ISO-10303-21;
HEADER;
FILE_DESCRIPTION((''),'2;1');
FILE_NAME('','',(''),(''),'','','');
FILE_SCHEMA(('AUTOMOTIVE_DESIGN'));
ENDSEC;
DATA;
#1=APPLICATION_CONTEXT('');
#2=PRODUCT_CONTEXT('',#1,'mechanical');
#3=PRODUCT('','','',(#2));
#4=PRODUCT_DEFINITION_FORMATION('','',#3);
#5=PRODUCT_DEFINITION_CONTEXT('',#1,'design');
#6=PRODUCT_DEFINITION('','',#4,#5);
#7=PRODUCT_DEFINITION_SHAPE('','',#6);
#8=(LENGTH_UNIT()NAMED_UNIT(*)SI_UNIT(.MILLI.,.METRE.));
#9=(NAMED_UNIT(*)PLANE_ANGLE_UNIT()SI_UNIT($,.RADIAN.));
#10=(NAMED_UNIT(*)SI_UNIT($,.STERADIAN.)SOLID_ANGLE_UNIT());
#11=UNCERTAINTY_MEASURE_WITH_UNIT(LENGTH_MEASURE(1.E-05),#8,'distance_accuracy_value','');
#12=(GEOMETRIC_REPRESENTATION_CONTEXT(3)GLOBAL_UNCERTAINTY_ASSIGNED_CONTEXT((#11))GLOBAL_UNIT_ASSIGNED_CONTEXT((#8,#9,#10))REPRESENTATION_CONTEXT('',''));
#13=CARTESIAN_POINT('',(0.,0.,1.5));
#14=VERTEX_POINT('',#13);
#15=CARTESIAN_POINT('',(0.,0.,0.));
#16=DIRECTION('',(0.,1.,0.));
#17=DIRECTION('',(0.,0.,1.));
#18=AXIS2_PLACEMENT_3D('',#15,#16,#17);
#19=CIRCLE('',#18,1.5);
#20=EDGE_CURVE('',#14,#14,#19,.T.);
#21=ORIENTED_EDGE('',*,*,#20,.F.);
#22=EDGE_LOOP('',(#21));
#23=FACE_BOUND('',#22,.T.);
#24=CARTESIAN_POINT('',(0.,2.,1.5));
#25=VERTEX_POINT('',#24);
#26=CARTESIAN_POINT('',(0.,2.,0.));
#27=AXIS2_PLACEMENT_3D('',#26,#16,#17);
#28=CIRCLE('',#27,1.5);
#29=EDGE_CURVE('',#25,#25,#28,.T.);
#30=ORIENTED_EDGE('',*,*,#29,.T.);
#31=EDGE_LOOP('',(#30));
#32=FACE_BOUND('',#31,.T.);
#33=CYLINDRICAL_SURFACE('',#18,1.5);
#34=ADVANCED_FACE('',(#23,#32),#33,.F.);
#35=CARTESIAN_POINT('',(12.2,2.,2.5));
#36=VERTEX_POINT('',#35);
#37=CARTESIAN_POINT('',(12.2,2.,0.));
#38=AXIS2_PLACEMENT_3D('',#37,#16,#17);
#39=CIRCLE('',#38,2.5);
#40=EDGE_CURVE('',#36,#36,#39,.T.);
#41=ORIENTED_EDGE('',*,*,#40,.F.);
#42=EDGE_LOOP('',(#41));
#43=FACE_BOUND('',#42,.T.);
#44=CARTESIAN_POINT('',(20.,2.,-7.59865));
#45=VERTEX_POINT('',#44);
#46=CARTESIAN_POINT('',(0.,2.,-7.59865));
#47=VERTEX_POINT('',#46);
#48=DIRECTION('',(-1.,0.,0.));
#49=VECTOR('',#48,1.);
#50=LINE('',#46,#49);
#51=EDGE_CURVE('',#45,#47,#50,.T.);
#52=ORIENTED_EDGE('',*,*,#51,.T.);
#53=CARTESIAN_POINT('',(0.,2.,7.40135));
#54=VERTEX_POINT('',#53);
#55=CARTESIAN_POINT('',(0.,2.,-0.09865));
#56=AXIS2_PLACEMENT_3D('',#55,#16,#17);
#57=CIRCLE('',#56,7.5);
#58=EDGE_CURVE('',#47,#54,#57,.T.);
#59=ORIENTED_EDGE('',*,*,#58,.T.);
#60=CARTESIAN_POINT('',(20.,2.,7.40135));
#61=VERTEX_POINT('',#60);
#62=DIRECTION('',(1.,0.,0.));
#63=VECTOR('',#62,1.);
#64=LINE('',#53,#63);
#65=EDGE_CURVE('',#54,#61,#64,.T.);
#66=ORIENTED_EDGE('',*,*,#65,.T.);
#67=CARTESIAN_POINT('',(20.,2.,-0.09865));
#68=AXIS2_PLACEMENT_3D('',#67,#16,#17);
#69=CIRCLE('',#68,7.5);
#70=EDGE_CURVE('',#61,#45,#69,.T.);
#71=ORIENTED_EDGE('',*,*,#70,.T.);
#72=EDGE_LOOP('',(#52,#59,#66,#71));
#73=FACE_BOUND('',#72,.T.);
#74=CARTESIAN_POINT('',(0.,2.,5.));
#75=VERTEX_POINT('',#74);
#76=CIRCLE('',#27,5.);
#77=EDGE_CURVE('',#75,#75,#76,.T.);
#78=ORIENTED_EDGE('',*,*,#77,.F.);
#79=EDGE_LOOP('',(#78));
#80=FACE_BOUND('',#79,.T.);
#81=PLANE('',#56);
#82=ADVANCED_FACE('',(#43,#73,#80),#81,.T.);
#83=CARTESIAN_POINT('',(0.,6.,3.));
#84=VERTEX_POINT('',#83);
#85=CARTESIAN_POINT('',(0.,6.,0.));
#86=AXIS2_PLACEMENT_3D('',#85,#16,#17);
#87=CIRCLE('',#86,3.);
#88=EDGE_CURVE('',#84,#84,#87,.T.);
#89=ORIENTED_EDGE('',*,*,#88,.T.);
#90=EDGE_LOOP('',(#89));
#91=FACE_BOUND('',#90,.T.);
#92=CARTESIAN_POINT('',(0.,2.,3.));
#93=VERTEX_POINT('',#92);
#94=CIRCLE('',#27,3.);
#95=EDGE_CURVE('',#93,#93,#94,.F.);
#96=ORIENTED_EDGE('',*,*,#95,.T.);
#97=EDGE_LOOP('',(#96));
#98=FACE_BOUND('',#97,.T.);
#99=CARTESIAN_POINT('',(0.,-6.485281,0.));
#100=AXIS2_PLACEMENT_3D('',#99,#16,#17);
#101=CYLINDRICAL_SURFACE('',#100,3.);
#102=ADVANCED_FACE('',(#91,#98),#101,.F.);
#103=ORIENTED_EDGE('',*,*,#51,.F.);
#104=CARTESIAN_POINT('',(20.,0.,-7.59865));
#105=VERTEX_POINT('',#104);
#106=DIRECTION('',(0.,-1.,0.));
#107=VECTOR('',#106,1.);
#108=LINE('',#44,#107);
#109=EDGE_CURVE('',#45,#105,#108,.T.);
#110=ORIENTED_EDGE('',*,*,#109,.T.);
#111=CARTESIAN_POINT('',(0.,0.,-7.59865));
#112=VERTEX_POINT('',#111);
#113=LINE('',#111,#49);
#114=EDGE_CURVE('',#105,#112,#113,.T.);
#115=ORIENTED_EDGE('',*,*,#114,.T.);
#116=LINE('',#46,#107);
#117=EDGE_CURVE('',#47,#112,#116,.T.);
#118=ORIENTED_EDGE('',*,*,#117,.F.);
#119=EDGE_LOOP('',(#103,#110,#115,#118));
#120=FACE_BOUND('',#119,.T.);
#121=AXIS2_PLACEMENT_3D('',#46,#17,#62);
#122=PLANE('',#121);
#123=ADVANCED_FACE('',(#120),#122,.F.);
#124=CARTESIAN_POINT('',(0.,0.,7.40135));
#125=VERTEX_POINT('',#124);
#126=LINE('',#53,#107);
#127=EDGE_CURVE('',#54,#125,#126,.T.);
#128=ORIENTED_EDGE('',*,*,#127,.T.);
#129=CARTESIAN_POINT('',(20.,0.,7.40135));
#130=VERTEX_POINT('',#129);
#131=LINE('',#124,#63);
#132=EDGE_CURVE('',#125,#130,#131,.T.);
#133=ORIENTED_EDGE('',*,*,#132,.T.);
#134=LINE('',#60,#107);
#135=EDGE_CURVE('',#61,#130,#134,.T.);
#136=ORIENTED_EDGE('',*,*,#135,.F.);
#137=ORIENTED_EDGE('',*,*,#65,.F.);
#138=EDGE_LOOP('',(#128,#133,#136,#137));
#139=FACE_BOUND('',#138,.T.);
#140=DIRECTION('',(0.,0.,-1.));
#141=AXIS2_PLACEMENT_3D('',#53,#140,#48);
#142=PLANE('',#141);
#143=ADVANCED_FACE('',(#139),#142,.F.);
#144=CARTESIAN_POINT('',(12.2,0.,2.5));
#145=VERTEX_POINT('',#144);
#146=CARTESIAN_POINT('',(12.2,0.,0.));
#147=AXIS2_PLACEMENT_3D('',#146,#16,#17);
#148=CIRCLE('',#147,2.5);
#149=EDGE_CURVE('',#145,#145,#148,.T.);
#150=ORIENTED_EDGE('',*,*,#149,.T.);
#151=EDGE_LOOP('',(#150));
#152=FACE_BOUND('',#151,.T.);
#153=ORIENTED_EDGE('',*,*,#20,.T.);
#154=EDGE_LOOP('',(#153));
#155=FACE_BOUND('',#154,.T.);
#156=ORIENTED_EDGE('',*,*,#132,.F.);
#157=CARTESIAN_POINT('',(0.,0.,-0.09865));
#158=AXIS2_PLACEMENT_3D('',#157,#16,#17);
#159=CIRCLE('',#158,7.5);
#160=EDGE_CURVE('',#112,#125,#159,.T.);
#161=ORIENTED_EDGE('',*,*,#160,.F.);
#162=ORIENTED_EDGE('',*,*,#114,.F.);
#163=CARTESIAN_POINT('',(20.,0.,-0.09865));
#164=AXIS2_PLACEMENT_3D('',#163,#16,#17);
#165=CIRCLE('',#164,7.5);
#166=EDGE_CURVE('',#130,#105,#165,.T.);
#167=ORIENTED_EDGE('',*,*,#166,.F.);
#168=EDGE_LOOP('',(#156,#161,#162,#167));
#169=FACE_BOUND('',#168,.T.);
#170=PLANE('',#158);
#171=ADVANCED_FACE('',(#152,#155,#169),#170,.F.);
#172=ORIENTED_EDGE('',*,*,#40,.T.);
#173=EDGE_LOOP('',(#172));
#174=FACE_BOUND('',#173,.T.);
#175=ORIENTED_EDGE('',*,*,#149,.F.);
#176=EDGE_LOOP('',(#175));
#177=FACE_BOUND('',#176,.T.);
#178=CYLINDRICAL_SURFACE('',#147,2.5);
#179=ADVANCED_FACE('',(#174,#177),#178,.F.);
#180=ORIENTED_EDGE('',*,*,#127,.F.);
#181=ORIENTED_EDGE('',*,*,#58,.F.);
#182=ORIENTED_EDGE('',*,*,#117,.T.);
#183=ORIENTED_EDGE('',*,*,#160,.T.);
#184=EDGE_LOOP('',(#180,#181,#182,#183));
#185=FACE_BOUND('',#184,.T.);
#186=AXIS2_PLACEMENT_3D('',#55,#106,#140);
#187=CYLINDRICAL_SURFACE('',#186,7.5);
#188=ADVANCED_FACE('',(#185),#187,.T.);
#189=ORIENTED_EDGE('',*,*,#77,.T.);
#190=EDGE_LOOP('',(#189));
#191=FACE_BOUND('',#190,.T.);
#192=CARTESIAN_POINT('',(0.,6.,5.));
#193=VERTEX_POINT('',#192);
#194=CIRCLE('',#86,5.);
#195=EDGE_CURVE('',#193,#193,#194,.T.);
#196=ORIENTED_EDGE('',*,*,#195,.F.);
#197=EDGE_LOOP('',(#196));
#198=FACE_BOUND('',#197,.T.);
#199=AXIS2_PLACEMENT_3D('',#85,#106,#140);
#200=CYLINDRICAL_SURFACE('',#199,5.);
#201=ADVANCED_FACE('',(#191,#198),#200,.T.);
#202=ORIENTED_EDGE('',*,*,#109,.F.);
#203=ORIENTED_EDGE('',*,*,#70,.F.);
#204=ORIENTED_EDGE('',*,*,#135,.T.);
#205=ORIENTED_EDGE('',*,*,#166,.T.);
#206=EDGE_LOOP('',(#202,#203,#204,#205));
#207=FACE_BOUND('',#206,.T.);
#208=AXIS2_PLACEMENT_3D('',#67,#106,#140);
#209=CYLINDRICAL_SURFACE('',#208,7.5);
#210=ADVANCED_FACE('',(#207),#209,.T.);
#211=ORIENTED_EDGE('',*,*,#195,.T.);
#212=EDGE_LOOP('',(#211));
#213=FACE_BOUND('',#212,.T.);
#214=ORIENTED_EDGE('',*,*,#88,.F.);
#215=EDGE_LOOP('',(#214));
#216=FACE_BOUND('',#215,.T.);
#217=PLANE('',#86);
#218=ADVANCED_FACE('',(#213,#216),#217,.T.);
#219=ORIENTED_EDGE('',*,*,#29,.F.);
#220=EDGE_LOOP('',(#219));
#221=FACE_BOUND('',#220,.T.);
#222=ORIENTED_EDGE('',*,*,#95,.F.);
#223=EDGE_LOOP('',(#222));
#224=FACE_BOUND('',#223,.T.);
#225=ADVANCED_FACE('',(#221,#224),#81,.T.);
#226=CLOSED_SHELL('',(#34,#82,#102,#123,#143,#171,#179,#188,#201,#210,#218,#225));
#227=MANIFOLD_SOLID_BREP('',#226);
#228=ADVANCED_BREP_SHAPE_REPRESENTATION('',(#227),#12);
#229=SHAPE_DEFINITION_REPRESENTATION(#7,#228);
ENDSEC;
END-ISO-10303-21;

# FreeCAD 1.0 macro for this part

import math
import FreeCAD as App
import Part
import Sketcher
Q = App.Units.Quantity

doc = App.newDocument("Part")
body = doc.addObject("PartDesign::Body", "Body")

# Sketch on XZ plane
sketch1 = body.newObject("Sketcher::SketchObject", "Sketch")
sketch1.AttachmentSupport = (doc.getObject("XZ_Plane"), [""])
sketch1.MapMode = "FlatFace"
sketch1.addGeometry([
    Part.LineSegment(App.Vector(20, -8, 0), App.Vector(0, -8, 0)),
    Part.ArcOfCircle(Part.Circle(App.Vector(0, 0, 0), App.Vector(0, 0, 1), 8), math.radians(90), math.radians(270)),
    Part.LineSegment(App.Vector(0, 7, 0), App.Vector(20, 7, 0)),
    Part.ArcOfCircle(Part.Circle(App.Vector(20, 0, 0), App.Vector(0, 0, 1), 8), math.radians(-90), math.radians(90)),
], False)
sketch1.addConstraint([
    Sketcher.Constraint("Tangent", 0, 2, 1, 2),
    Sketcher.Constraint("Tangent", 1, 1, 2, 1),
    Sketcher.Constraint("Tangent", 2, 2, 3, 2),
    Sketcher.Constraint("Tangent", 3, 1, 0, 1),
    Sketcher.Constraint("Horizontal", 0),
    Sketcher.Constraint("Horizontal", 2),
    Sketcher.Constraint("PointOnObject", 1, 3, -2),
    Sketcher.Constraint("Radius", 1, Q("7.5 mm")),
    Sketcher.Constraint("DistanceX", 0, 2, 0, 1, Q("20 mm")),
    Sketcher.Constraint("DistanceY", 1, 3, -1, 1, Q("0.09865 mm")),
])
pad1 = body.newObject("PartDesign::Pad", "Pad")
pad1.Profile = sketch1
pad1.Length = 2
pad1.Reversed = True

# Sketch on XZ plane
sketch2 = body.newObject("Sketcher::SketchObject", "Sketch001")
sketch2.AttachmentSupport = (doc.getObject("XZ_Plane"), [""])
sketch2.MapMode = "FlatFace"
sketch2.AttachmentOffset = App.Placement(App.Vector(0, 0, -2), App.Rotation())
sketch2.addGeometry(Part.Circle(App.Vector(0, 0, 0), App.Vector(0, 0, 1), 5), False)
sketch2.addConstraint([
    Sketcher.Constraint("Coincident", 0, 3, -1, 1),
    Sketcher.Constraint("Diameter", 0, Q("10 mm")),
])
pad2 = body.newObject("PartDesign::Pad", "Pad001")
pad2.Profile = sketch2
pad2.Length = 4
pad2.Reversed = True

# Sketch on XZ plane
sketch3 = body.newObject("Sketcher::SketchObject", "Sketch002")
sketch3.AttachmentSupport = (doc.getObject("XZ_Plane"), [""])
sketch3.MapMode = "FlatFace"
sketch3.AttachmentOffset = App.Placement(App.Vector(0, 0, -6), App.Rotation())
sketch3.addGeometry(Part.Circle(App.Vector(0, 0, 0), App.Vector(0, 0, 1), 3), False)
sketch3.addConstraint([
    Sketcher.Constraint("Coincident", 0, 3, -1, 1),
    Sketcher.Constraint("Diameter", 0, Q("6 mm")),
])
pocket1 = body.newObject("PartDesign::Pocket", "Pocket")
pocket1.Profile = sketch3
pocket1.Length = 4
pocket1.Reversed = True

# Sketch on XZ plane
sketch4 = body.newObject("Sketcher::SketchObject", "Sketch003")
sketch4.AttachmentSupport = (doc.getObject("XZ_Plane"), [""])
sketch4.MapMode = "FlatFace"
sketch4.AttachmentOffset = App.Placement(App.Vector(0, 0, -2), App.Rotation())
sketch4.addGeometry(Part.Circle(App.Vector(0, 0, 0), App.Vector(0, 0, 1), 1.5), False)
sketch4.addConstraint([
    Sketcher.Constraint("Coincident", 0, 3, -1, 1),
    Sketcher.Constraint("Diameter", 0, Q("3 mm")),
])
pocket2 = body.newObject("PartDesign::Pocket", "Pocket001")
pocket2.Profile = sketch4
pocket2.Length = 2
pocket2.Reversed = True

# Sketch on XZ plane
sketch5 = body.newObject("Sketcher::SketchObject", "Sketch004")
sketch5.AttachmentSupport = (doc.getObject("XZ_Plane"), [""])
sketch5.MapMode = "FlatFace"
sketch5.AttachmentOffset = App.Placement(App.Vector(0, 0, -2), App.Rotation())
sketch5.addGeometry(Part.Circle(App.Vector(12.2, 0, 0), App.Vector(0, 0, 1), 2.5), False)
sketch5.addConstraint([
    Sketcher.Constraint("PointOnObject", 0, 3, -1),
    Sketcher.Constraint("Diameter", 0, Q("5 mm")),
    Sketcher.Constraint("DistanceX", -1, 1, 0, 3, Q("12.2 mm")),
])
pocket3 = body.newObject("PartDesign::Pocket", "Pocket002")
pocket3.Profile = sketch5
pocket3.Type = "ThroughAll"
pocket3.Reversed = True

doc.recompute()
